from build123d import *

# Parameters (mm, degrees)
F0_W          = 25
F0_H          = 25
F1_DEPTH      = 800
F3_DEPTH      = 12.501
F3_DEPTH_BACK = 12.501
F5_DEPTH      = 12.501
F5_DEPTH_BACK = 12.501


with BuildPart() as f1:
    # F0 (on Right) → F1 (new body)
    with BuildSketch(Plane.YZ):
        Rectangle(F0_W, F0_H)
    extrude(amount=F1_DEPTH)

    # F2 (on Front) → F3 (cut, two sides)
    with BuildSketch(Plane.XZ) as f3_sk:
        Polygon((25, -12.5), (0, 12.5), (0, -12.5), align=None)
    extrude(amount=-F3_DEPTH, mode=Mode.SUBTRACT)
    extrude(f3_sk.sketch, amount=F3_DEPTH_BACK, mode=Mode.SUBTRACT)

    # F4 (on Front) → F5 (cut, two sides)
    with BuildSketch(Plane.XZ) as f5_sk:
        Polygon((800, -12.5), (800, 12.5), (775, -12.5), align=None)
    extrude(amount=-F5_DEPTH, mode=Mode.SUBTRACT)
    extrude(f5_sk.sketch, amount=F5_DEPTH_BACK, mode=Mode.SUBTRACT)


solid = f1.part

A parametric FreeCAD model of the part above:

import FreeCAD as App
import Part
import Sketcher
from FreeCAD import Vector

doc = App.newDocument("Part")
body = doc.addObject("PartDesign::Body", "Body")

# Sketch on YZ plane
sketch1 = body.newObject("Sketcher::SketchObject", "Sketch")
sketch1.AttachmentSupport = (doc.getObject("YZ_Plane"), [""])
sketch1.MapMode = "FlatFace"
sketch1.addGeometry([
    Part.LineSegment(Vector(-12, 12, 0), Vector(-12, -12, 0)),
    Part.LineSegment(Vector(-12, -12, 0), Vector(12, -12, 0)),
    Part.LineSegment(Vector(12, -12, 0), Vector(12, 12, 0)),
    Part.LineSegment(Vector(12, 12, 0), Vector(-12, 12, 0)),
], False)
sketch1.addConstraint([
    Sketcher.Constraint("Coincident", 0, 2, 1, 1),
    Sketcher.Constraint("Coincident", 1, 2, 2, 1),
    Sketcher.Constraint("Coincident", 2, 2, 3, 1),
    Sketcher.Constraint("Coincident", 3, 2, 0, 1),
    Sketcher.Constraint("Vertical", 0),
    Sketcher.Constraint("Horizontal", 1),
    Sketcher.Constraint("Vertical", 2),
    Sketcher.Constraint("Horizontal", 3),
    Sketcher.Constraint("Symmetric", 0, 2, 2, 2, -1, 1),
    Sketcher.Constraint("Equal", 3, 0),
    Sketcher.Constraint("DistanceX", 1, 1, 1, 2, 25.0),
])
pad1 = body.newObject("PartDesign::Pad", "Pad")
pad1.Profile = sketch1
pad1.Length = 800

# Sketch on XZ plane
sketch2 = body.newObject("Sketcher::SketchObject", "Sketch001")
sketch2.AttachmentSupport = (doc.getObject("XZ_Plane"), [""])
sketch2.MapMode = "FlatFace"
sketch2.addGeometry([
    Part.LineSegment(Vector(25, -12, 0), Vector(0, 12, 0)),
    Part.LineSegment(Vector(0, 12, 0), Vector(0, -12, 0)),
    Part.LineSegment(Vector(0, -12, 0), Vector(25, -12, 0)),
], False)
sketch2.addConstraint([
    Sketcher.Constraint("Coincident", 0, 2, 1, 1),
    Sketcher.Constraint("Coincident", 1, 2, 2, 1),
    Sketcher.Constraint("Coincident", 2, 2, 0, 1),
    Sketcher.Constraint("Vertical", 1),
    Sketcher.Constraint("Horizontal", 2),
    Sketcher.Constraint("Symmetric", 0, 2, 1, 2, -1, 1),
    Sketcher.Constraint("Equal", 2, 1),
    Sketcher.Constraint("DistanceX", 2, 1, 2, 2, 25.0),
])
pocket1 = body.newObject("PartDesign::Pocket", "Pocket")
pocket1.Profile = sketch2
pocket1.Type = "ThroughAll"
pocket1.Midplane = True

# Sketch on XZ plane
sketch3 = body.newObject("Sketcher::SketchObject", "Sketch002")
sketch3.AttachmentSupport = (doc.getObject("XZ_Plane"), [""])
sketch3.MapMode = "FlatFace"
sketch3.addGeometry([
    Part.LineSegment(Vector(800, -12, 0), Vector(800, 12, 0)),
    Part.LineSegment(Vector(800, 12, 0), Vector(775, -12, 0)),
    Part.LineSegment(Vector(775, -12, 0), Vector(800, -12, 0)),
], False)
sketch3.addConstraint([
    Sketcher.Constraint("Coincident", 0, 2, 1, 1),
    Sketcher.Constraint("Coincident", 1, 2, 2, 1),
    Sketcher.Constraint("Coincident", 2, 2, 0, 1),
    Sketcher.Constraint("Vertical", 0),
    Sketcher.Constraint("Horizontal", 2),
    Sketcher.Constraint("Equal", 2, 0),
    Sketcher.Constraint("DistanceX", 2, 1, 2, 2, 25.0),
    Sketcher.Constraint("DistanceX", -1, 1, 0, 2, 800.0),
    Sketcher.Constraint("DistanceY", -1, 1, 0, 2, 12.5),
])
pocket2 = body.newObject("PartDesign::Pocket", "Pocket001")
pocket2.Profile = sketch3
pocket2.Type = "ThroughAll"
pocket2.Midplane = True

doc.recompute()
